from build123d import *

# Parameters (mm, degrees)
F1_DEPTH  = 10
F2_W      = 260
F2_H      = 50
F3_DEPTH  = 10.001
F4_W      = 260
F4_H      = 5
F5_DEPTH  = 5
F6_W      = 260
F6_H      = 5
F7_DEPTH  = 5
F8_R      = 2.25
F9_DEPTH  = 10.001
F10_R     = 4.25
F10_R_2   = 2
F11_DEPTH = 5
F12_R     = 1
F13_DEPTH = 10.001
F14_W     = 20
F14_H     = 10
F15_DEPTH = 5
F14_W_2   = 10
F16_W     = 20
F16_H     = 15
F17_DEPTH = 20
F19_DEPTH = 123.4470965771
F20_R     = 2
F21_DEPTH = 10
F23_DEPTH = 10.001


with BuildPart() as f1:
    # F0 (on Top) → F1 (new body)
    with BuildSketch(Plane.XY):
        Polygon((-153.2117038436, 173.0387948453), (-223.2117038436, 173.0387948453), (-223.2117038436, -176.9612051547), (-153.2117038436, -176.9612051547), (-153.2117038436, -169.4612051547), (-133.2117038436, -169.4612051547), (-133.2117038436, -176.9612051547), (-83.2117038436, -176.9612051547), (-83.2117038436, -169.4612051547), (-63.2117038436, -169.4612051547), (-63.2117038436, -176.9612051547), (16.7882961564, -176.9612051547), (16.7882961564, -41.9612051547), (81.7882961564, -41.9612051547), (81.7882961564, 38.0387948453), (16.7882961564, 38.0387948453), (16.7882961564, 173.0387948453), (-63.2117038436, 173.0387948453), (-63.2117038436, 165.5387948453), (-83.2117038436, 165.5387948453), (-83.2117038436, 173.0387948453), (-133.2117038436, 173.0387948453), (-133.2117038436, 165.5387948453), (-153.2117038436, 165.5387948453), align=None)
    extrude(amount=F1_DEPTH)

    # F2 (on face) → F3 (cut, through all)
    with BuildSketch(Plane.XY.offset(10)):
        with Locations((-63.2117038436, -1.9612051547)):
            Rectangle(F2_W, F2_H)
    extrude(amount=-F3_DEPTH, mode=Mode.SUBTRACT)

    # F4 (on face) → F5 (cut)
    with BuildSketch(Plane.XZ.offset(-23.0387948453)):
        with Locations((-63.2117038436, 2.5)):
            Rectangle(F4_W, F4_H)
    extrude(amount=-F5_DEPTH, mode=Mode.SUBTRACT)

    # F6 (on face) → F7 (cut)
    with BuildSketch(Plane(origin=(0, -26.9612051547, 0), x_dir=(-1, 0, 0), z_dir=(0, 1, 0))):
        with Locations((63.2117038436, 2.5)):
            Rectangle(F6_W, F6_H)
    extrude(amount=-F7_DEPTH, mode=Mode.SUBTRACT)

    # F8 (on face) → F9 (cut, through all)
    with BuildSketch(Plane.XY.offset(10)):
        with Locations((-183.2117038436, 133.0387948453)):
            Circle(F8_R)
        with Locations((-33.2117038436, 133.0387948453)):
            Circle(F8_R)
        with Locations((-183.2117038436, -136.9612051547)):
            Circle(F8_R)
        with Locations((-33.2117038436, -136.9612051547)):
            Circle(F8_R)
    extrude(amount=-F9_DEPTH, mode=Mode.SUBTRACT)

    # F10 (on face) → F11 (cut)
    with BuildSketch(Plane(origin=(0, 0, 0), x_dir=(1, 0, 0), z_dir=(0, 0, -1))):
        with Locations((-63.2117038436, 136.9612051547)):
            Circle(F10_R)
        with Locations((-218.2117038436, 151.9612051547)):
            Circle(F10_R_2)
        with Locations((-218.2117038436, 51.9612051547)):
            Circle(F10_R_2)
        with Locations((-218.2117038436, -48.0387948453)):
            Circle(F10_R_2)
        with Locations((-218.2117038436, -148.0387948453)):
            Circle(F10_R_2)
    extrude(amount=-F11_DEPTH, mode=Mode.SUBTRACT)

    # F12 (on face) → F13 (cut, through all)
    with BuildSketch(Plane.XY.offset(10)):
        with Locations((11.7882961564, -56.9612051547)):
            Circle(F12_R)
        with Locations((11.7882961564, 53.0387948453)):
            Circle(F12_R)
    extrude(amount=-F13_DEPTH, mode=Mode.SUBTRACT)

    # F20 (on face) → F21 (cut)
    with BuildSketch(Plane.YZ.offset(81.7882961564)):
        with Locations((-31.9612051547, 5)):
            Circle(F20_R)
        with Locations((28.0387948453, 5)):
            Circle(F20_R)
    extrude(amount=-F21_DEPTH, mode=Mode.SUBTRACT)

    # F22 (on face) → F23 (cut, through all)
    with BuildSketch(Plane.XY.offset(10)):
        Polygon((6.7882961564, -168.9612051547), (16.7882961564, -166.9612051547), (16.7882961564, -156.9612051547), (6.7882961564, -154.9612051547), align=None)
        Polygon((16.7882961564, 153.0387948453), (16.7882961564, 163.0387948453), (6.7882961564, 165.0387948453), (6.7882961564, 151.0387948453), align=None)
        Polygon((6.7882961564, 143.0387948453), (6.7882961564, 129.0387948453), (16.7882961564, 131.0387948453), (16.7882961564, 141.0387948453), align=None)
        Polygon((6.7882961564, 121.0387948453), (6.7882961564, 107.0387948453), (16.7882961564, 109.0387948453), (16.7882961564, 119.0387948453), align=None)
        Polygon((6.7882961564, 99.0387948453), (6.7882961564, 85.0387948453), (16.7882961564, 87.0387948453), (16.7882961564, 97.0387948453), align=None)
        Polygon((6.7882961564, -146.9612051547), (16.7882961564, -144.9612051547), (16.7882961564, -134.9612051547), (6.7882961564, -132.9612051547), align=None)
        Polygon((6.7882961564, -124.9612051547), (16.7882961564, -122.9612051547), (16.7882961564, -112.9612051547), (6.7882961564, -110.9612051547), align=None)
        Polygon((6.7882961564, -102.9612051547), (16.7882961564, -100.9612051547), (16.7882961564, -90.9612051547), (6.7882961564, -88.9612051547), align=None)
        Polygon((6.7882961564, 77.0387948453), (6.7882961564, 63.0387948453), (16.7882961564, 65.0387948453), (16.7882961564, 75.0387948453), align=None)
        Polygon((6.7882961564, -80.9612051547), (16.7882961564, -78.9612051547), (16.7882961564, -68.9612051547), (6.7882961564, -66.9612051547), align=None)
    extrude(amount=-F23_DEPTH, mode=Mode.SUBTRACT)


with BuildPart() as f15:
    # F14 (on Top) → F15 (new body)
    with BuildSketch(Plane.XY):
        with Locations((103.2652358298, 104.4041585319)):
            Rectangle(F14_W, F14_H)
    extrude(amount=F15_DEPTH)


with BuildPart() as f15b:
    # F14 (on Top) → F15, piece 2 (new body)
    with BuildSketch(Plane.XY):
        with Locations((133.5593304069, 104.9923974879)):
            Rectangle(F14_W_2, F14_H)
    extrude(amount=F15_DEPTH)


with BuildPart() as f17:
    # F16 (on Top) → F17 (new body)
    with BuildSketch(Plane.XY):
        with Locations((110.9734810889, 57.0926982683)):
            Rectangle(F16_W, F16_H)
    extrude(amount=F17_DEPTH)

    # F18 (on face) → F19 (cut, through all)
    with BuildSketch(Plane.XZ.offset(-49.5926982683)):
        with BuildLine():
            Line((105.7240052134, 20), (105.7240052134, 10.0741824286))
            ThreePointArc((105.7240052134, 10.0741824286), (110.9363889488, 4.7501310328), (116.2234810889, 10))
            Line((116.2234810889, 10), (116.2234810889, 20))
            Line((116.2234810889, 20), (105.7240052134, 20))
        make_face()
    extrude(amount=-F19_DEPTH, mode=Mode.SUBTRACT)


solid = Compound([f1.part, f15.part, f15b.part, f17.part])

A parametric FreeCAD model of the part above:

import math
import FreeCAD as App
import Part
import Sketcher
from FreeCAD import Vector

doc = App.newDocument("Part")
body = doc.addObject("PartDesign::Body", "Body")

sketch1 = body.newObject("Sketcher::SketchObject", "Sketch")
sketch1.AttachmentSupport = (doc.getObject("XY_Plane"), [""])
sketch1.MapMode = "FlatFace"
sketch1.addGeometry(Part.LineSegment(Vector(-153, 173, 0), Vector(-223, 173, 0)), False)
sketch1.addGeometry(Part.LineSegment(Vector(-223, 173, 0), Vector(-223, -177, 0)), False)
sketch1.addGeometry(Part.LineSegment(Vector(-223, -177, 0), Vector(-153, -177, 0)), False)
sketch1.addGeometry(Part.LineSegment(Vector(-153, -177, 0), Vector(-153, -169, 0)), False)
sketch1.addGeometry(Part.LineSegment(Vector(-153, -169, 0), Vector(-133, -169, 0)), False)
sketch1.addGeometry(Part.LineSegment(Vector(-133, -169, 0), Vector(-133, -177, 0)), False)
sketch1.addGeometry(Part.LineSegment(Vector(-133, -177, 0), Vector(-83, -177, 0)), False)
sketch1.addGeometry(Part.LineSegment(Vector(-83, -177, 0), Vector(-83, -169, 0)), False)
sketch1.addGeometry(Part.LineSegment(Vector(-83, -169, 0), Vector(-63, -169, 0)), False)
sketch1.addGeometry(Part.LineSegment(Vector(-63, -169, 0), Vector(-63, -177, 0)), False)
sketch1.addGeometry(Part.LineSegment(Vector(-63, -177, 0), Vector(17, -177, 0)), False)
sketch1.addGeometry(Part.LineSegment(Vector(17, -177, 0), Vector(17, -42, 0)), False)
sketch1.addGeometry(Part.LineSegment(Vector(17, -42, 0), Vector(82, -42, 0)), False)
sketch1.addGeometry(Part.LineSegment(Vector(82, -42, 0), Vector(82, 38, 0)), False)
sketch1.addGeometry(Part.LineSegment(Vector(82, 38, 0), Vector(17, 38, 0)), False)
sketch1.addGeometry(Part.LineSegment(Vector(17, 38, 0), Vector(17, 173, 0)), False)
sketch1.addGeometry(Part.LineSegment(Vector(17, 173, 0), Vector(-63, 173, 0)), False)
sketch1.addGeometry(Part.LineSegment(Vector(-63, 173, 0), Vector(-63, 166, 0)), False)
sketch1.addGeometry(Part.LineSegment(Vector(-63, 166, 0), Vector(-83, 166, 0)), False)
sketch1.addGeometry(Part.LineSegment(Vector(-83, 166, 0), Vector(-83, 173, 0)), False)
sketch1.addGeometry(Part.LineSegment(Vector(-83, 173, 0), Vector(-133, 173, 0)), False)
sketch1.addGeometry(Part.LineSegment(Vector(-133, 173, 0), Vector(-133, 166, 0)), False)
sketch1.addGeometry(Part.LineSegment(Vector(-133, 166, 0), Vector(-153, 166, 0)), False)
sketch1.addGeometry(Part.LineSegment(Vector(-153, 166, 0), Vector(-153, 173, 0)), False)
sketch1.addConstraint(Sketcher.Constraint("Coincident", 0, 2, 1, 1))
sketch1.addConstraint(Sketcher.Constraint("Coincident", 1, 2, 2, 1))
sketch1.addConstraint(Sketcher.Constraint("Coincident", 2, 2, 3, 1))
sketch1.addConstraint(Sketcher.Constraint("Coincident", 3, 2, 4, 1))
sketch1.addConstraint(Sketcher.Constraint("Coincident", 4, 2, 5, 1))
sketch1.addConstraint(Sketcher.Constraint("Coincident", 5, 2, 6, 1))
sketch1.addConstraint(Sketcher.Constraint("Coincident", 6, 2, 7, 1))
sketch1.addConstraint(Sketcher.Constraint("Coincident", 7, 2, 8, 1))
sketch1.addConstraint(Sketcher.Constraint("Coincident", 8, 2, 9, 1))
sketch1.addConstraint(Sketcher.Constraint("Coincident", 9, 2, 10, 1))
sketch1.addConstraint(Sketcher.Constraint("Coincident", 10, 2, 11, 1))
sketch1.addConstraint(Sketcher.Constraint("Coincident", 11, 2, 12, 1))
sketch1.addConstraint(Sketcher.Constraint("Coincident", 12, 2, 13, 1))
sketch1.addConstraint(Sketcher.Constraint("Coincident", 13, 2, 14, 1))
sketch1.addConstraint(Sketcher.Constraint("Coincident", 14, 2, 15, 1))
sketch1.addConstraint(Sketcher.Constraint("Coincident", 15, 2, 16, 1))
sketch1.addConstraint(Sketcher.Constraint("Coincident", 16, 2, 17, 1))
sketch1.addConstraint(Sketcher.Constraint("Coincident", 17, 2, 18, 1))
sketch1.addConstraint(Sketcher.Constraint("Coincident", 18, 2, 19, 1))
sketch1.addConstraint(Sketcher.Constraint("Coincident", 19, 2, 20, 1))
sketch1.addConstraint(Sketcher.Constraint("Coincident", 20, 2, 21, 1))
sketch1.addConstraint(Sketcher.Constraint("Coincident", 21, 2, 22, 1))
sketch1.addConstraint(Sketcher.Constraint("Coincident", 22, 2, 23, 1))
sketch1.addConstraint(Sketcher.Constraint("Coincident", 23, 2, 0, 1))
sketch1.addConstraint(Sketcher.Constraint("Horizontal", 0))
sketch1.addConstraint(Sketcher.Constraint("Vertical", 1))
sketch1.addConstraint(Sketcher.Constraint("Horizontal", 2))
sketch1.addConstraint(Sketcher.Constraint("Vertical", 3))
sketch1.addConstraint(Sketcher.Constraint("Horizontal", 4))
sketch1.addConstraint(Sketcher.Constraint("Vertical", 5))
sketch1.addConstraint(Sketcher.Constraint("Horizontal", 6))
sketch1.addConstraint(Sketcher.Constraint("Vertical", 7))
sketch1.addConstraint(Sketcher.Constraint("Horizontal", 8))
sketch1.addConstraint(Sketcher.Constraint("Vertical", 9))
sketch1.addConstraint(Sketcher.Constraint("Horizontal", 10))
sketch1.addConstraint(Sketcher.Constraint("Vertical", 11))
sketch1.addConstraint(Sketcher.Constraint("Horizontal", 12))
sketch1.addConstraint(Sketcher.Constraint("Vertical", 13))
sketch1.addConstraint(Sketcher.Constraint("Horizontal", 14))
sketch1.addConstraint(Sketcher.Constraint("Vertical", 15))
sketch1.addConstraint(Sketcher.Constraint("Horizontal", 16))
sketch1.addConstraint(Sketcher.Constraint("Vertical", 17))
sketch1.addConstraint(Sketcher.Constraint("Horizontal", 18))
sketch1.addConstraint(Sketcher.Constraint("Vertical", 19))
sketch1.addConstraint(Sketcher.Constraint("Horizontal", 20))
sketch1.addConstraint(Sketcher.Constraint("Vertical", 21))
sketch1.addConstraint(Sketcher.Constraint("Horizontal", 22))
sketch1.addConstraint(Sketcher.Constraint("Vertical", 23))
sketch1.addConstraint(Sketcher.Constraint("Horizontal", 2, 2, 5, 2))
sketch1.addConstraint(Sketcher.Constraint("Horizontal", 4, 2, 7, 2))
sketch1.addConstraint(Sketcher.Constraint("Horizontal", 6, 2, 9, 2))
sketch1.addConstraint(Sketcher.Constraint("Horizontal", 0, 2, 15, 2))
sketch1.addConstraint(Sketcher.Constraint("Horizontal", 16, 2, 19, 2))
sketch1.addConstraint(Sketcher.Constraint("Horizontal", 18, 2, 21, 2))
sketch1.addConstraint(Sketcher.Constraint("Vertical", 11, 2, 14, 2))
sketch1.addConstraint(Sketcher.Constraint("Vertical", 9, 2, 16, 2))
sketch1.addConstraint(Sketcher.Constraint("Vertical", 7, 2, 18, 2))
sketch1.addConstraint(Sketcher.Constraint("Vertical", 5, 2, 20, 2))
sketch1.addConstraint(Sketcher.Constraint("Vertical", 3, 2, 22, 2))
sketch1.addConstraint(Sketcher.Constraint("Equal", 4, 8))
sketch1.addConstraint(Sketcher.Constraint("Equal", 16, 13))
sketch1.addConstraint(Sketcher.Constraint("Equal", 11, 15))
sketch1.addConstraint(Sketcher.Constraint("Equal", 9, 17))
sketch1.addConstraint(Sketcher.Constraint("DistanceX", 0, 2, 0, 1, 70.0))
sketch1.addConstraint(Sketcher.Constraint("DistanceX", 4, 1, 4, 2, 20.0))
sketch1.addConstraint(Sketcher.Constraint("DistanceX", 6, 1, 6, 2, 50.0))
sketch1.addConstraint(Sketcher.Constraint("DistanceX", 10, 1, 10, 2, 80.0))
sketch1.addConstraint(Sketcher.Constraint("DistanceX", 12, 1, 12, 2, 65.0))
sketch1.addConstraint(Sketcher.Constraint("DistanceY", 1, 2, 1, 1, 350.0))
sketch1.addConstraint(Sketcher.Constraint("DistanceY", 3, 1, 3, 2, 7.5))
sketch1.addConstraint(Sketcher.Constraint("DistanceX", 0, 2, -1, 1, 223.211704))
sketch1.addConstraint(Sketcher.Constraint("DistanceY", -1, 1, 0, 2, 173.038795))
pad1 = body.newObject("PartDesign::Pad", "Pad")
pad1.Profile = sketch1
pad1.Length = 10

sketch2 = body.newObject("Sketcher::SketchObject", "Sketch001")
sketch2.AttachmentSupport = (doc.getObject("XY_Plane"), [""])
sketch2.MapMode = "FlatFace"
sketch2.AttachmentOffset = App.Placement(Vector(0, 0, 10), App.Rotation())
sketch2.addGeometry(Part.LineSegment(Vector(-193, 23, 0), Vector(-193, -27, 0)), False)
sketch2.addGeometry(Part.LineSegment(Vector(-193, -27, 0), Vector(67, -27, 0)), False)
sketch2.addGeometry(Part.LineSegment(Vector(67, -27, 0), Vector(67, 23, 0)), False)
sketch2.addGeometry(Part.LineSegment(Vector(67, 23, 0), Vector(-193, 23, 0)), False)
sketch2.addConstraint(Sketcher.Constraint("Coincident", 0, 2, 1, 1))
sketch2.addConstraint(Sketcher.Constraint("Coincident", 1, 2, 2, 1))
sketch2.addConstraint(Sketcher.Constraint("Coincident", 2, 2, 3, 1))
sketch2.addConstraint(Sketcher.Constraint("Coincident", 3, 2, 0, 1))
sketch2.addConstraint(Sketcher.Constraint("Vertical", 0))
sketch2.addConstraint(Sketcher.Constraint("Horizontal", 1))
sketch2.addConstraint(Sketcher.Constraint("Vertical", 2))
sketch2.addConstraint(Sketcher.Constraint("Horizontal", 3))
sketch2.addConstraint(Sketcher.Constraint("DistanceX", 1, 1, 1, 2, 260.0))
sketch2.addConstraint(Sketcher.Constraint("DistanceY", 0, 2, 0, 1, 50.0))
sketch2.addConstraint(Sketcher.Constraint("DistanceX", 0, 2, -1, 1, 193.211704))
sketch2.addConstraint(Sketcher.Constraint("DistanceY", 0, 2, -1, 1, 26.961205))
pocket1 = body.newObject("PartDesign::Pocket", "Pocket")
pocket1.Profile = sketch2
pocket1.Type = "ThroughAll"

sketch3 = body.newObject("Sketcher::SketchObject", "Sketch002")
sketch3.AttachmentSupport = (doc.getObject("XZ_Plane"), [""])
sketch3.MapMode = "FlatFace"
sketch3.AttachmentOffset = App.Placement(Vector(0, 0, -23.038795), App.Rotation())
sketch3.addGeometry(Part.LineSegment(Vector(-193, 5, 0), Vector(-193, 0, 0)), False)
sketch3.addGeometry(Part.LineSegment(Vector(-193, 0, 0), Vector(67, 0, 0)), False)
sketch3.addGeometry(Part.LineSegment(Vector(67, 0, 0), Vector(67, 5, 0)), False)
sketch3.addGeometry(Part.LineSegment(Vector(67, 5, 0), Vector(-193, 5, 0)), False)
sketch3.addConstraint(Sketcher.Constraint("Coincident", 0, 2, 1, 1))
sketch3.addConstraint(Sketcher.Constraint("Coincident", 1, 2, 2, 1))
sketch3.addConstraint(Sketcher.Constraint("Coincident", 2, 2, 3, 1))
sketch3.addConstraint(Sketcher.Constraint("Coincident", 3, 2, 0, 1))
sketch3.addConstraint(Sketcher.Constraint("Vertical", 0))
sketch3.addConstraint(Sketcher.Constraint("Horizontal", 1))
sketch3.addConstraint(Sketcher.Constraint("Vertical", 2))
sketch3.addConstraint(Sketcher.Constraint("Horizontal", 3))
sketch3.addConstraint(Sketcher.Constraint("PointOnObject", 0, 2, -1))
sketch3.addConstraint(Sketcher.Constraint("DistanceX", 1, 1, 1, 2, 260.0))
sketch3.addConstraint(Sketcher.Constraint("DistanceY", 0, 2, 0, 1, 5.0))
sketch3.addConstraint(Sketcher.Constraint("DistanceX", 0, 2, -1, 1, 193.211704))
pocket2 = body.newObject("PartDesign::Pocket", "Pocket001")
pocket2.Profile = sketch3
pocket2.Length = 5

sketch4 = body.newObject("Sketcher::SketchObject", "Sketch003")
sketch4.AttachmentSupport = (doc.getObject("XZ_Plane"), [""])
sketch4.MapMode = "FlatFace"
sketch4.AttachmentOffset = App.Placement(Vector(0, 0, 26.961205), App.Rotation())
sketch4.addGeometry(Part.LineSegment(Vector(67, 5, 0), Vector(67, 0, 0)), False)
sketch4.addGeometry(Part.LineSegment(Vector(67, 0, 0), Vector(-193, 0, 0)), False)
sketch4.addGeometry(Part.LineSegment(Vector(-193, 0, 0), Vector(-193, 5, 0)), False)
sketch4.addGeometry(Part.LineSegment(Vector(-193, 5, 0), Vector(67, 5, 0)), False)
sketch4.addConstraint(Sketcher.Constraint("Coincident", 0, 2, 1, 1))
sketch4.addConstraint(Sketcher.Constraint("Coincident", 1, 2, 2, 1))
sketch4.addConstraint(Sketcher.Constraint("Coincident", 2, 2, 3, 1))
sketch4.addConstraint(Sketcher.Constraint("Coincident", 3, 2, 0, 1))
sketch4.addConstraint(Sketcher.Constraint("Vertical", 0))
sketch4.addConstraint(Sketcher.Constraint("Horizontal", 1))
sketch4.addConstraint(Sketcher.Constraint("Vertical", 2))
sketch4.addConstraint(Sketcher.Constraint("Horizontal", 3))
sketch4.addConstraint(Sketcher.Constraint("PointOnObject", 0, 2, -1))
sketch4.addConstraint(Sketcher.Constraint("DistanceX", 1, 2, 1, 1, 260.0))
sketch4.addConstraint(Sketcher.Constraint("DistanceY", 0, 2, 0, 1, 5.0))
sketch4.addConstraint(Sketcher.Constraint("DistanceX", -1, 1, 0, 2, 66.788296))
pocket3 = body.newObject("PartDesign::Pocket", "Pocket002")
pocket3.Profile = sketch4
pocket3.Length = 5
pocket3.Reversed = True

sketch5 = body.newObject("Sketcher::SketchObject", "Sketch004")
sketch5.AttachmentSupport = (doc.getObject("XY_Plane"), [""])
sketch5.MapMode = "FlatFace"
sketch5.AttachmentOffset = App.Placement(Vector(0, 0, 10), App.Rotation())
sketch5.addGeometry(Part.Circle(Vector(-183.2, 133, 0), Vector(0, 0, 1), 2.2), False)
sketch5.addGeometry(Part.Circle(Vector(-33.2, 133, 0), Vector(0, 0, 1), 2.2), False)
sketch5.addGeometry(Part.Circle(Vector(-183.2, -137, 0), Vector(0, 0, 1), 2.2), False)
sketch5.addGeometry(Part.Circle(Vector(-33.2, -137, 0), Vector(0, 0, 1), 2.2), False)
sketch5.addConstraint(Sketcher.Constraint("Equal", 0, 1))
sketch5.addConstraint(Sketcher.Constraint("Equal", 1, 2))
sketch5.addConstraint(Sketcher.Constraint("Equal", 2, 3))
sketch5.addConstraint(Sketcher.Constraint("Horizontal", 0, 3, 1, 3))
sketch5.addConstraint(Sketcher.Constraint("Horizontal", 2, 3, 3, 3))
sketch5.addConstraint(Sketcher.Constraint("Vertical", 0, 3, 2, 3))
sketch5.addConstraint(Sketcher.Constraint("Vertical", 1, 3, 3, 3))
sketch5.addConstraint(Sketcher.Constraint("Diameter", 0, 4.5))
sketch5.addConstraint(Sketcher.Constraint("DistanceX", 0, 3, 1, 3, 150.0))
sketch5.addConstraint(Sketcher.Constraint("DistanceY", 2, 3, 0, 3, 270.0))
sketch5.addConstraint(Sketcher.Constraint("DistanceX", 0, 3, -1, 1, 183.211704))
sketch5.addConstraint(Sketcher.Constraint("DistanceY", -1, 1, 0, 3, 133.038795))
pocket4 = body.newObject("PartDesign::Pocket", "Pocket003")
pocket4.Profile = sketch5
pocket4.Type = "ThroughAll"

sketch6 = body.newObject("Sketcher::SketchObject", "Sketch005")
sketch6.AttachmentSupport = (doc.getObject("XY_Plane"), [""])
sketch6.MapMode = "FlatFace"
sketch6.addGeometry(Part.Circle(Vector(-63.2, -137, 0), Vector(0, 0, 1), 4.2), False)
sketch6.addGeometry(Part.Circle(Vector(-218.2, -152, 0), Vector(0, 0, 1), 2), False)
sketch6.addGeometry(Part.Circle(Vector(-218.2, -52, 0), Vector(0, 0, 1), 2), False)
sketch6.addGeometry(Part.Circle(Vector(-218.2, 48, 0), Vector(0, 0, 1), 2), False)
sketch6.addGeometry(Part.Circle(Vector(-218.2, 148, 0), Vector(0, 0, 1), 2), False)
sketch6.addConstraint(Sketcher.Constraint("Equal", 1, 2))
sketch6.addConstraint(Sketcher.Constraint("Equal", 2, 3))
sketch6.addConstraint(Sketcher.Constraint("Equal", 3, 4))
sketch6.addConstraint(Sketcher.Constraint("Vertical", 1, 3, 2, 3))
sketch6.addConstraint(Sketcher.Constraint("Vertical", 2, 3, 3, 3))
sketch6.addConstraint(Sketcher.Constraint("Vertical", 3, 3, 4, 3))
sketch6.addConstraint(Sketcher.Constraint("Diameter", 1, 4.0))
sketch6.addConstraint(Sketcher.Constraint("Diameter", 0, 8.5))
sketch6.addConstraint(Sketcher.Constraint("DistanceX", 1, 3, 0, 3, 155.0))
sketch6.addConstraint(Sketcher.Constraint("DistanceY", 1, 3, 0, 3, 15.0))
sketch6.addConstraint(Sketcher.Constraint("DistanceY", 1, 3, 2, 3, 100.0))
sketch6.addConstraint(Sketcher.Constraint("DistanceY", 2, 3, 3, 3, 100.0))
sketch6.addConstraint(Sketcher.Constraint("DistanceY", 3, 3, 4, 3, 100.0))
sketch6.addConstraint(Sketcher.Constraint("DistanceX", 0, 3, -1, 1, 63.211704))
sketch6.addConstraint(Sketcher.Constraint("DistanceY", 0, 3, -1, 1, 136.961205))
pocket5 = body.newObject("PartDesign::Pocket", "Pocket004")
pocket5.Profile = sketch6
pocket5.Length = 5
pocket5.Reversed = True

sketch7 = body.newObject("Sketcher::SketchObject", "Sketch006")
sketch7.AttachmentSupport = (doc.getObject("XY_Plane"), [""])
sketch7.MapMode = "FlatFace"
sketch7.AttachmentOffset = App.Placement(Vector(0, 0, 10), App.Rotation())
sketch7.addGeometry(Part.Circle(Vector(11.8, -57, 0), Vector(0, 0, 1), 1), False)
sketch7.addGeometry(Part.Circle(Vector(11.8, 53, 0), Vector(0, 0, 1), 1), False)
sketch7.addConstraint(Sketcher.Constraint("Equal", 0, 1))
sketch7.addConstraint(Sketcher.Constraint("Vertical", 0, 3, 1, 3))
sketch7.addConstraint(Sketcher.Constraint("Diameter", 0, 2.0))
sketch7.addConstraint(Sketcher.Constraint("DistanceY", 0, 3, 1, 3, 110.0))
sketch7.addConstraint(Sketcher.Constraint("DistanceX", -1, 1, 0, 3, 11.788296))
sketch7.addConstraint(Sketcher.Constraint("DistanceY", 0, 3, -1, 1, 56.961205))
pocket6 = body.newObject("PartDesign::Pocket", "Pocket005")
pocket6.Profile = sketch7
pocket6.Type = "ThroughAll"

sketch8 = body.newObject("Sketcher::SketchObject", "Sketch007")
sketch8.AttachmentSupport = (doc.getObject("YZ_Plane"), [""])
sketch8.MapMode = "FlatFace"
sketch8.AttachmentOffset = App.Placement(Vector(0, 0, 81.788296), App.Rotation())
sketch8.addGeometry(Part.Circle(Vector(-32, 5, 0), Vector(0, 0, 1), 2), False)
sketch8.addGeometry(Part.Circle(Vector(28, 5, 0), Vector(0, 0, 1), 2), False)
sketch8.addConstraint(Sketcher.Constraint("Equal", 0, 1))
sketch8.addConstraint(Sketcher.Constraint("Horizontal", 0, 3, 1, 3))
sketch8.addConstraint(Sketcher.Constraint("Diameter", 0, 4.0))
sketch8.addConstraint(Sketcher.Constraint("DistanceY", -1, 1, 0, 3, 5.0))
sketch8.addConstraint(Sketcher.Constraint("DistanceX", 0, 3, 1, 3, 60.0))
sketch8.addConstraint(Sketcher.Constraint("DistanceX", 0, 3, -1, 1, 31.961205))
pocket7 = body.newObject("PartDesign::Pocket", "Pocket006")
pocket7.Profile = sketch8
pocket7.Length = 10

sketch9 = body.newObject("Sketcher::SketchObject", "Sketch008")
sketch9.AttachmentSupport = (doc.getObject("XY_Plane"), [""])
sketch9.MapMode = "FlatFace"
sketch9.AttachmentOffset = App.Placement(Vector(0, 0, 10), App.Rotation())
sketch9.addGeometry(Part.LineSegment(Vector(7, -169, 0), Vector(17, -167, 0)), False)
sketch9.addGeometry(Part.LineSegment(Vector(17, -167, 0), Vector(17, -157, 0)), False)
sketch9.addGeometry(Part.LineSegment(Vector(17, -157, 0), Vector(7, -155, 0)), False)
sketch9.addGeometry(Part.LineSegment(Vector(7, -155, 0), Vector(7, -169, 0)), False)
sketch9.addGeometry(Part.LineSegment(Vector(17, 153, 0), Vector(17, 163, 0)), False)
sketch9.addGeometry(Part.LineSegment(Vector(17, 163, 0), Vector(7, 165, 0)), False)
sketch9.addGeometry(Part.LineSegment(Vector(7, 165, 0), Vector(7, 151, 0)), False)
sketch9.addGeometry(Part.LineSegment(Vector(7, 151, 0), Vector(17, 153, 0)), False)
sketch9.addGeometry(Part.LineSegment(Vector(7, 143, 0), Vector(7, 129, 0)), False)
sketch9.addGeometry(Part.LineSegment(Vector(7, 129, 0), Vector(17, 131, 0)), False)
sketch9.addGeometry(Part.LineSegment(Vector(17, 131, 0), Vector(17, 141, 0)), False)
sketch9.addGeometry(Part.LineSegment(Vector(17, 141, 0), Vector(7, 143, 0)), False)
sketch9.addGeometry(Part.LineSegment(Vector(7, 121, 0), Vector(7, 107, 0)), False)
sketch9.addGeometry(Part.LineSegment(Vector(7, 107, 0), Vector(17, 109, 0)), False)
sketch9.addGeometry(Part.LineSegment(Vector(17, 109, 0), Vector(17, 119, 0)), False)
sketch9.addGeometry(Part.LineSegment(Vector(17, 119, 0), Vector(7, 121, 0)), False)
sketch9.addGeometry(Part.LineSegment(Vector(7, 99, 0), Vector(7, 85, 0)), False)
sketch9.addGeometry(Part.LineSegment(Vector(7, 85, 0), Vector(17, 87, 0)), False)
sketch9.addGeometry(Part.LineSegment(Vector(17, 87, 0), Vector(17, 97, 0)), False)
sketch9.addGeometry(Part.LineSegment(Vector(17, 97, 0), Vector(7, 99, 0)), False)
sketch9.addGeometry(Part.LineSegment(Vector(7, -147, 0), Vector(17, -145, 0)), False)
sketch9.addGeometry(Part.LineSegment(Vector(17, -145, 0), Vector(17, -135, 0)), False)
sketch9.addGeometry(Part.LineSegment(Vector(17, -135, 0), Vector(7, -133, 0)), False)
sketch9.addGeometry(Part.LineSegment(Vector(7, -133, 0), Vector(7, -147, 0)), False)
sketch9.addGeometry(Part.LineSegment(Vector(7, -125, 0), Vector(17, -123, 0)), False)
sketch9.addGeometry(Part.LineSegment(Vector(17, -123, 0), Vector(17, -113, 0)), False)
sketch9.addGeometry(Part.LineSegment(Vector(17, -113, 0), Vector(7, -111, 0)), False)
sketch9.addGeometry(Part.LineSegment(Vector(7, -111, 0), Vector(7, -125, 0)), False)
sketch9.addGeometry(Part.LineSegment(Vector(7, -103, 0), Vector(17, -101, 0)), False)
sketch9.addGeometry(Part.LineSegment(Vector(17, -101, 0), Vector(17, -91, 0)), False)
sketch9.addGeometry(Part.LineSegment(Vector(17, -91, 0), Vector(7, -89, 0)), False)
sketch9.addGeometry(Part.LineSegment(Vector(7, -89, 0), Vector(7, -103, 0)), False)
sketch9.addGeometry(Part.LineSegment(Vector(7, 77, 0), Vector(7, 63, 0)), False)
sketch9.addGeometry(Part.LineSegment(Vector(7, 63, 0), Vector(17, 65, 0)), False)
sketch9.addGeometry(Part.LineSegment(Vector(17, 65, 0), Vector(17, 75, 0)), False)
sketch9.addGeometry(Part.LineSegment(Vector(17, 75, 0), Vector(7, 77, 0)), False)
sketch9.addGeometry(Part.LineSegment(Vector(7, -81, 0), Vector(17, -79, 0)), False)
sketch9.addGeometry(Part.LineSegment(Vector(17, -79, 0), Vector(17, -69, 0)), False)
sketch9.addGeometry(Part.LineSegment(Vector(17, -69, 0), Vector(7, -67, 0)), False)
sketch9.addGeometry(Part.LineSegment(Vector(7, -67, 0), Vector(7, -81, 0)), False)
sketch9.addConstraint(Sketcher.Constraint("Coincident", 0, 2, 1, 1))
sketch9.addConstraint(Sketcher.Constraint("Coincident", 1, 2, 2, 1))
sketch9.addConstraint(Sketcher.Constraint("Coincident", 2, 2, 3, 1))
sketch9.addConstraint(Sketcher.Constraint("Coincident", 3, 2, 0, 1))
sketch9.addConstraint(Sketcher.Constraint("Coincident", 4, 2, 5, 1))
sketch9.addConstraint(Sketcher.Constraint("Coincident", 5, 2, 6, 1))
sketch9.addConstraint(Sketcher.Constraint("Coincident", 6, 2, 7, 1))
sketch9.addConstraint(Sketcher.Constraint("Coincident", 7, 2, 4, 1))
sketch9.addConstraint(Sketcher.Constraint("Coincident", 8, 2, 9, 1))
sketch9.addConstraint(Sketcher.Constraint("Coincident", 9, 2, 10, 1))
sketch9.addConstraint(Sketcher.Constraint("Coincident", 10, 2, 11, 1))
sketch9.addConstraint(Sketcher.Constraint("Coincident", 11, 2, 8, 1))
sketch9.addConstraint(Sketcher.Constraint("Coincident", 12, 2, 13, 1))
sketch9.addConstraint(Sketcher.Constraint("Coincident", 13, 2, 14, 1))
sketch9.addConstraint(Sketcher.Constraint("Coincident", 14, 2, 15, 1))
sketch9.addConstraint(Sketcher.Constraint("Coincident", 15, 2, 12, 1))
sketch9.addConstraint(Sketcher.Constraint("Coincident", 16, 2, 17, 1))
sketch9.addConstraint(Sketcher.Constraint("Coincident", 17, 2, 18, 1))
sketch9.addConstraint(Sketcher.Constraint("Coincident", 18, 2, 19, 1))
sketch9.addConstraint(Sketcher.Constraint("Coincident", 19, 2, 16, 1))
sketch9.addConstraint(Sketcher.Constraint("Coincident", 20, 2, 21, 1))
sketch9.addConstraint(Sketcher.Constraint("Coincident", 21, 2, 22, 1))
sketch9.addConstraint(Sketcher.Constraint("Coincident", 22, 2, 23, 1))
sketch9.addConstraint(Sketcher.Constraint("Coincident", 23, 2, 20, 1))
sketch9.addConstraint(Sketcher.Constraint("Coincident", 24, 2, 25, 1))
sketch9.addConstraint(Sketcher.Constraint("Coincident", 25, 2, 26, 1))
sketch9.addConstraint(Sketcher.Constraint("Coincident", 26, 2, 27, 1))
sketch9.addConstraint(Sketcher.Constraint("Coincident", 27, 2, 24, 1))
sketch9.addConstraint(Sketcher.Constraint("Coincident", 28, 2, 29, 1))
sketch9.addConstraint(Sketcher.Constraint("Coincident", 29, 2, 30, 1))
sketch9.addConstraint(Sketcher.Constraint("Coincident", 30, 2, 31, 1))
sketch9.addConstraint(Sketcher.Constraint("Coincident", 31, 2, 28, 1))
sketch9.addConstraint(Sketcher.Constraint("Coincident", 32, 2, 33, 1))
sketch9.addConstraint(Sketcher.Constraint("Coincident", 33, 2, 34, 1))
sketch9.addConstraint(Sketcher.Constraint("Coincident", 34, 2, 35, 1))
sketch9.addConstraint(Sketcher.Constraint("Coincident", 35, 2, 32, 1))
sketch9.addConstraint(Sketcher.Constraint("Coincident", 36, 2, 37, 1))
sketch9.addConstraint(Sketcher.Constraint("Coincident", 37, 2, 38, 1))
sketch9.addConstraint(Sketcher.Constraint("Coincident", 38, 2, 39, 1))
sketch9.addConstraint(Sketcher.Constraint("Coincident", 39, 2, 36, 1))
sketch9.addConstraint(Sketcher.Constraint("Vertical", 1))
sketch9.addConstraint(Sketcher.Constraint("Vertical", 3))
sketch9.addConstraint(Sketcher.Constraint("Vertical", 4))
sketch9.addConstraint(Sketcher.Constraint("Vertical", 6))
sketch9.addConstraint(Sketcher.Constraint("Vertical", 8))
sketch9.addConstraint(Sketcher.Constraint("Vertical", 10))
sketch9.addConstraint(Sketcher.Constraint("Vertical", 12))
sketch9.addConstraint(Sketcher.Constraint("Vertical", 14))
sketch9.addConstraint(Sketcher.Constraint("Vertical", 16))
sketch9.addConstraint(Sketcher.Constraint("Vertical", 18))
sketch9.addConstraint(Sketcher.Constraint("Vertical", 21))
sketch9.addConstraint(Sketcher.Constraint("Vertical", 23))
sketch9.addConstraint(Sketcher.Constraint("Vertical", 25))
sketch9.addConstraint(Sketcher.Constraint("Vertical", 27))
sketch9.addConstraint(Sketcher.Constraint("Vertical", 29))
sketch9.addConstraint(Sketcher.Constraint("Vertical", 31))
sketch9.addConstraint(Sketcher.Constraint("Vertical", 32))
sketch9.addConstraint(Sketcher.Constraint("Vertical", 34))
sketch9.addConstraint(Sketcher.Constraint("Vertical", 37))
sketch9.addConstraint(Sketcher.Constraint("Vertical", 39))
sketch9.addConstraint(Sketcher.Constraint("Parallel", 2, 5))
sketch9.addConstraint(Sketcher.Constraint("Parallel", 0, 7))
sketch9.addConstraint(Sketcher.Constraint("Parallel", 7, 9))
sketch9.addConstraint(Sketcher.Constraint("Parallel", 5, 11))
sketch9.addConstraint(Sketcher.Constraint("Parallel", 9, 13))
sketch9.addConstraint(Sketcher.Constraint("Parallel", 11, 15))
sketch9.addConstraint(Sketcher.Constraint("Parallel", 13, 17))
sketch9.addConstraint(Sketcher.Constraint("Parallel", 15, 19))
sketch9.addConstraint(Sketcher.Constraint("Parallel", 17, 20))
sketch9.addConstraint(Sketcher.Constraint("Parallel", 19, 22))
sketch9.addConstraint(Sketcher.Constraint("Parallel", 20, 24))
sketch9.addConstraint(Sketcher.Constraint("Parallel", 22, 26))
sketch9.addConstraint(Sketcher.Constraint("Parallel", 24, 28))
sketch9.addConstraint(Sketcher.Constraint("Parallel", 26, 30))
sketch9.addConstraint(Sketcher.Constraint("Parallel", 28, 33))
sketch9.addConstraint(Sketcher.Constraint("Parallel", 30, 35))
sketch9.addConstraint(Sketcher.Constraint("Parallel", 33, 36))
sketch9.addConstraint(Sketcher.Constraint("Parallel", 35, 38))
sketch9.addConstraint(Sketcher.Constraint("Vertical", 1, 2, 4, 2))
sketch9.addConstraint(Sketcher.Constraint("Vertical", 3, 2, 5, 2))
sketch9.addConstraint(Sketcher.Constraint("Vertical", 6, 2, 8, 2))
sketch9.addConstraint(Sketcher.Constraint("Vertical", 7, 2, 9, 2))
sketch9.addConstraint(Sketcher.Constraint("Vertical", 11, 2, 12, 2))
sketch9.addConstraint(Sketcher.Constraint("Vertical", 10, 2, 13, 2))
sketch9.addConstraint(Sketcher.Constraint("Vertical", 15, 2, 16, 2))
sketch9.addConstraint(Sketcher.Constraint("Vertical", 14, 2, 17, 2))
sketch9.addConstraint(Sketcher.Constraint("Vertical", 18, 2, 20, 2))
sketch9.addConstraint(Sketcher.Constraint("Vertical", 19, 2, 22, 2))
sketch9.addConstraint(Sketcher.Constraint("Vertical", 21, 2, 24, 2))
sketch9.addConstraint(Sketcher.Constraint("Vertical", 23, 2, 26, 2))
sketch9.addConstraint(Sketcher.Constraint("Vertical", 25, 2, 28, 2))
sketch9.addConstraint(Sketcher.Constraint("Vertical", 27, 2, 30, 2))
sketch9.addConstraint(Sketcher.Constraint("Vertical", 31, 2, 32, 2))
sketch9.addConstraint(Sketcher.Constraint("Vertical", 29, 2, 33, 2))
sketch9.addConstraint(Sketcher.Constraint("Vertical", 34, 2, 36, 2))
sketch9.addConstraint(Sketcher.Constraint("Vertical", 35, 2, 38, 2))
sketch9.addConstraint(Sketcher.Constraint("Equal", 1, 4))
sketch9.addConstraint(Sketcher.Constraint("Equal", 6, 8))
sketch9.addConstraint(Sketcher.Constraint("Equal", 8, 12))
sketch9.addConstraint(Sketcher.Constraint("Equal", 12, 16))
sketch9.addConstraint(Sketcher.Constraint("Equal", 18, 21))
sketch9.addConstraint(Sketcher.Constraint("Equal", 21, 25))
sketch9.addConstraint(Sketcher.Constraint("Equal", 25, 29))
sketch9.addConstraint(Sketcher.Constraint("Equal", 31, 32))
sketch9.addConstraint(Sketcher.Constraint("Equal", 34, 37))
sketch9.addConstraint(Sketcher.Constraint("Equal", 0, 2))
sketch9.addConstraint(Sketcher.Constraint("DistanceY", 1, 1, 1, 2, 10.0))
sketch9.addConstraint(Sketcher.Constraint("DistanceY", 3, 2, 3, 1, 14.0))
sketch9.addConstraint(Sketcher.Constraint("DistanceX", 2, 2, 1, 2, 10.0))
sketch9.addConstraint(Sketcher.Constraint("DistanceY", 2, 2, 4, 2, 318.0))
sketch9.addConstraint(Sketcher.Constraint("DistanceY", 8, 2, 6, 2, 22.0))
sketch9.addConstraint(Sketcher.Constraint("DistanceY", 12, 2, 8, 2, 22.0))
sketch9.addConstraint(Sketcher.Constraint("DistanceY", 16, 2, 12, 2, 22.0))
sketch9.addConstraint(Sketcher.Constraint("DistanceY", 1, 2, 20, 2, 12.0))
sketch9.addConstraint(Sketcher.Constraint("DistanceY", 21, 2, 24, 2, 12.0))
sketch9.addConstraint(Sketcher.Constraint("DistanceY", 25, 2, 28, 2, 12.0))
sketch9.addConstraint(Sketcher.Constraint("DistanceY", 32, 2, 16, 2, 22.0))
sketch9.addConstraint(Sketcher.Constraint("DistanceY", 29, 2, 36, 2, 12.0))
sketch9.addConstraint(Sketcher.Constraint("DistanceX", -1, 1, 0, 2, 16.788296))
sketch9.addConstraint(Sketcher.Constraint("DistanceY", 0, 2, -1, 1, 166.961205))
pocket8 = body.newObject("PartDesign::Pocket", "Pocket007")
pocket8.Profile = sketch9
pocket8.Type = "ThroughAll"
body2 = doc.addObject("PartDesign::Body", "Body001")

sketch10 = body2.newObject("Sketcher::SketchObject", "Sketch009")
sketch10.AttachmentSupport = (doc.getObject("XY_Plane001"), [""])
sketch10.MapMode = "FlatFace"
sketch10.addGeometry(Part.LineSegment(Vector(93, 109, 0), Vector(93, 99, 0)), False)
sketch10.addGeometry(Part.LineSegment(Vector(93, 99, 0), Vector(113, 99, 0)), False)
sketch10.addGeometry(Part.LineSegment(Vector(113, 99, 0), Vector(113, 109, 0)), False)
sketch10.addGeometry(Part.LineSegment(Vector(113, 109, 0), Vector(93, 109, 0)), False)
sketch10.addConstraint(Sketcher.Constraint("Coincident", 0, 2, 1, 1))
sketch10.addConstraint(Sketcher.Constraint("Coincident", 1, 2, 2, 1))
sketch10.addConstraint(Sketcher.Constraint("Coincident", 2, 2, 3, 1))
sketch10.addConstraint(Sketcher.Constraint("Coincident", 3, 2, 0, 1))
sketch10.addConstraint(Sketcher.Constraint("Vertical", 0))
sketch10.addConstraint(Sketcher.Constraint("Horizontal", 1))
sketch10.addConstraint(Sketcher.Constraint("Vertical", 2))
sketch10.addConstraint(Sketcher.Constraint("Horizontal", 3))
sketch10.addConstraint(Sketcher.Constraint("DistanceX", 1, 1, 1, 2, 20.0))
sketch10.addConstraint(Sketcher.Constraint("DistanceY", 0, 2, 0, 1, 10.0))
sketch10.addConstraint(Sketcher.Constraint("DistanceY", -1, 1, 0, 2, 99.404159))
sketch10.addConstraint(Sketcher.Constraint("DistanceX", -1, 1, 0, 2, 93.265236))
pad2 = body2.newObject("PartDesign::Pad", "Pad001")
pad2.Profile = sketch10
pad2.Length = 5
body3 = doc.addObject("PartDesign::Body", "Body002")

sketch11 = body3.newObject("Sketcher::SketchObject", "Sketch010")
sketch11.AttachmentSupport = (doc.getObject("XY_Plane002"), [""])
sketch11.MapMode = "FlatFace"
sketch11.addGeometry(Part.LineSegment(Vector(129, 110, 0), Vector(129, 100, 0)), False)
sketch11.addGeometry(Part.LineSegment(Vector(129, 100, 0), Vector(139, 100, 0)), False)
sketch11.addGeometry(Part.LineSegment(Vector(139, 100, 0), Vector(139, 110, 0)), False)
sketch11.addGeometry(Part.LineSegment(Vector(139, 110, 0), Vector(129, 110, 0)), False)
sketch11.addConstraint(Sketcher.Constraint("Coincident", 0, 2, 1, 1))
sketch11.addConstraint(Sketcher.Constraint("Coincident", 1, 2, 2, 1))
sketch11.addConstraint(Sketcher.Constraint("Coincident", 2, 2, 3, 1))
sketch11.addConstraint(Sketcher.Constraint("Coincident", 3, 2, 0, 1))
sketch11.addConstraint(Sketcher.Constraint("Vertical", 0))
sketch11.addConstraint(Sketcher.Constraint("Horizontal", 1))
sketch11.addConstraint(Sketcher.Constraint("Vertical", 2))
sketch11.addConstraint(Sketcher.Constraint("Horizontal", 3))
sketch11.addConstraint(Sketcher.Constraint("Equal", 3, 0))
sketch11.addConstraint(Sketcher.Constraint("DistanceX", 1, 1, 1, 2, 10.0))
sketch11.addConstraint(Sketcher.Constraint("DistanceX", -1, 1, 0, 2, 128.55933))
sketch11.addConstraint(Sketcher.Constraint("DistanceY", -1, 1, 0, 2, 99.992397))
pad3 = body3.newObject("PartDesign::Pad", "Pad002")
pad3.Profile = sketch11
pad3.Length = 5
body4 = doc.addObject("PartDesign::Body", "Body003")

sketch12 = body4.newObject("Sketcher::SketchObject", "Sketch011")
sketch12.AttachmentSupport = (doc.getObject("XY_Plane003"), [""])
sketch12.MapMode = "FlatFace"
sketch12.addGeometry(Part.LineSegment(Vector(101, 65, 0), Vector(101, 50, 0)), False)
sketch12.addGeometry(Part.LineSegment(Vector(101, 50, 0), Vector(121, 50, 0)), False)
sketch12.addGeometry(Part.LineSegment(Vector(121, 50, 0), Vector(121, 65, 0)), False)
sketch12.addGeometry(Part.LineSegment(Vector(121, 65, 0), Vector(101, 65, 0)), False)
sketch12.addConstraint(Sketcher.Constraint("Coincident", 0, 2, 1, 1))
sketch12.addConstraint(Sketcher.Constraint("Coincident", 1, 2, 2, 1))
sketch12.addConstraint(Sketcher.Constraint("Coincident", 2, 2, 3, 1))
sketch12.addConstraint(Sketcher.Constraint("Coincident", 3, 2, 0, 1))
sketch12.addConstraint(Sketcher.Constraint("Vertical", 0))
sketch12.addConstraint(Sketcher.Constraint("Horizontal", 1))
sketch12.addConstraint(Sketcher.Constraint("Vertical", 2))
sketch12.addConstraint(Sketcher.Constraint("Horizontal", 3))
sketch12.addConstraint(Sketcher.Constraint("DistanceX", 1, 1, 1, 2, 20.0))
sketch12.addConstraint(Sketcher.Constraint("DistanceY", 0, 2, 0, 1, 15.0))
sketch12.addConstraint(Sketcher.Constraint("DistanceY", -1, 1, 0, 2, 49.592698))
sketch12.addConstraint(Sketcher.Constraint("DistanceX", -1, 1, 0, 2, 100.973481))
pad4 = body4.newObject("PartDesign::Pad", "Pad003")
pad4.Profile = sketch12
pad4.Length = 20

sketch13 = body4.newObject("Sketcher::SketchObject", "Sketch012")
sketch13.AttachmentSupport = (doc.getObject("XZ_Plane003"), [""])
sketch13.MapMode = "FlatFace"
sketch13.AttachmentOffset = App.Placement(Vector(0, 0, -49.592698), App.Rotation())
sketch13.addGeometry(Part.LineSegment(Vector(106, 20, 0), Vector(106, 10, 0)), False)
sketch13.addGeometry(Part.ArcOfCircle(Part.Circle(Vector(111, 10, 0), Vector(0, 0, 1), 5), math.radians(179), math.radians(360)), False)
sketch13.addGeometry(Part.LineSegment(Vector(116, 10, 0), Vector(116, 20, 0)), False)
sketch13.addGeometry(Part.LineSegment(Vector(116, 20, 0), Vector(106, 20, 0)), False)
sketch13.addConstraint(Sketcher.Constraint("Coincident", 0, 2, 1, 1))
sketch13.addConstraint(Sketcher.Constraint("Tangent", 1, 2, 2, 1))
sketch13.addConstraint(Sketcher.Constraint("Coincident", 2, 2, 3, 1))
sketch13.addConstraint(Sketcher.Constraint("Coincident", 3, 2, 0, 1))
sketch13.addConstraint(Sketcher.Constraint("Vertical", 0))
sketch13.addConstraint(Sketcher.Constraint("Vertical", 2))
sketch13.addConstraint(Sketcher.Constraint("Horizontal", 3))
sketch13.addConstraint(Sketcher.Constraint("DistanceY", 2, 1, 2, 2, 10.0))
sketch13.addConstraint(Sketcher.Constraint("Radius", 1, 5.25))
sketch13.addConstraint(Sketcher.Constraint("DistanceY", -1, 1, 1, 3, 10.0))
sketch13.addConstraint(Sketcher.Constraint("DistanceX", 3, 2, 3, 1, 10.499476))
sketch13.addConstraint(Sketcher.Constraint("DistanceX", -1, 1, 1, 3, 110.973481))
pocket9 = body4.newObject("PartDesign::Pocket", "Pocket008")
pocket9.Profile = sketch13
pocket9.Type = "ThroughAll"

doc.recompute()
